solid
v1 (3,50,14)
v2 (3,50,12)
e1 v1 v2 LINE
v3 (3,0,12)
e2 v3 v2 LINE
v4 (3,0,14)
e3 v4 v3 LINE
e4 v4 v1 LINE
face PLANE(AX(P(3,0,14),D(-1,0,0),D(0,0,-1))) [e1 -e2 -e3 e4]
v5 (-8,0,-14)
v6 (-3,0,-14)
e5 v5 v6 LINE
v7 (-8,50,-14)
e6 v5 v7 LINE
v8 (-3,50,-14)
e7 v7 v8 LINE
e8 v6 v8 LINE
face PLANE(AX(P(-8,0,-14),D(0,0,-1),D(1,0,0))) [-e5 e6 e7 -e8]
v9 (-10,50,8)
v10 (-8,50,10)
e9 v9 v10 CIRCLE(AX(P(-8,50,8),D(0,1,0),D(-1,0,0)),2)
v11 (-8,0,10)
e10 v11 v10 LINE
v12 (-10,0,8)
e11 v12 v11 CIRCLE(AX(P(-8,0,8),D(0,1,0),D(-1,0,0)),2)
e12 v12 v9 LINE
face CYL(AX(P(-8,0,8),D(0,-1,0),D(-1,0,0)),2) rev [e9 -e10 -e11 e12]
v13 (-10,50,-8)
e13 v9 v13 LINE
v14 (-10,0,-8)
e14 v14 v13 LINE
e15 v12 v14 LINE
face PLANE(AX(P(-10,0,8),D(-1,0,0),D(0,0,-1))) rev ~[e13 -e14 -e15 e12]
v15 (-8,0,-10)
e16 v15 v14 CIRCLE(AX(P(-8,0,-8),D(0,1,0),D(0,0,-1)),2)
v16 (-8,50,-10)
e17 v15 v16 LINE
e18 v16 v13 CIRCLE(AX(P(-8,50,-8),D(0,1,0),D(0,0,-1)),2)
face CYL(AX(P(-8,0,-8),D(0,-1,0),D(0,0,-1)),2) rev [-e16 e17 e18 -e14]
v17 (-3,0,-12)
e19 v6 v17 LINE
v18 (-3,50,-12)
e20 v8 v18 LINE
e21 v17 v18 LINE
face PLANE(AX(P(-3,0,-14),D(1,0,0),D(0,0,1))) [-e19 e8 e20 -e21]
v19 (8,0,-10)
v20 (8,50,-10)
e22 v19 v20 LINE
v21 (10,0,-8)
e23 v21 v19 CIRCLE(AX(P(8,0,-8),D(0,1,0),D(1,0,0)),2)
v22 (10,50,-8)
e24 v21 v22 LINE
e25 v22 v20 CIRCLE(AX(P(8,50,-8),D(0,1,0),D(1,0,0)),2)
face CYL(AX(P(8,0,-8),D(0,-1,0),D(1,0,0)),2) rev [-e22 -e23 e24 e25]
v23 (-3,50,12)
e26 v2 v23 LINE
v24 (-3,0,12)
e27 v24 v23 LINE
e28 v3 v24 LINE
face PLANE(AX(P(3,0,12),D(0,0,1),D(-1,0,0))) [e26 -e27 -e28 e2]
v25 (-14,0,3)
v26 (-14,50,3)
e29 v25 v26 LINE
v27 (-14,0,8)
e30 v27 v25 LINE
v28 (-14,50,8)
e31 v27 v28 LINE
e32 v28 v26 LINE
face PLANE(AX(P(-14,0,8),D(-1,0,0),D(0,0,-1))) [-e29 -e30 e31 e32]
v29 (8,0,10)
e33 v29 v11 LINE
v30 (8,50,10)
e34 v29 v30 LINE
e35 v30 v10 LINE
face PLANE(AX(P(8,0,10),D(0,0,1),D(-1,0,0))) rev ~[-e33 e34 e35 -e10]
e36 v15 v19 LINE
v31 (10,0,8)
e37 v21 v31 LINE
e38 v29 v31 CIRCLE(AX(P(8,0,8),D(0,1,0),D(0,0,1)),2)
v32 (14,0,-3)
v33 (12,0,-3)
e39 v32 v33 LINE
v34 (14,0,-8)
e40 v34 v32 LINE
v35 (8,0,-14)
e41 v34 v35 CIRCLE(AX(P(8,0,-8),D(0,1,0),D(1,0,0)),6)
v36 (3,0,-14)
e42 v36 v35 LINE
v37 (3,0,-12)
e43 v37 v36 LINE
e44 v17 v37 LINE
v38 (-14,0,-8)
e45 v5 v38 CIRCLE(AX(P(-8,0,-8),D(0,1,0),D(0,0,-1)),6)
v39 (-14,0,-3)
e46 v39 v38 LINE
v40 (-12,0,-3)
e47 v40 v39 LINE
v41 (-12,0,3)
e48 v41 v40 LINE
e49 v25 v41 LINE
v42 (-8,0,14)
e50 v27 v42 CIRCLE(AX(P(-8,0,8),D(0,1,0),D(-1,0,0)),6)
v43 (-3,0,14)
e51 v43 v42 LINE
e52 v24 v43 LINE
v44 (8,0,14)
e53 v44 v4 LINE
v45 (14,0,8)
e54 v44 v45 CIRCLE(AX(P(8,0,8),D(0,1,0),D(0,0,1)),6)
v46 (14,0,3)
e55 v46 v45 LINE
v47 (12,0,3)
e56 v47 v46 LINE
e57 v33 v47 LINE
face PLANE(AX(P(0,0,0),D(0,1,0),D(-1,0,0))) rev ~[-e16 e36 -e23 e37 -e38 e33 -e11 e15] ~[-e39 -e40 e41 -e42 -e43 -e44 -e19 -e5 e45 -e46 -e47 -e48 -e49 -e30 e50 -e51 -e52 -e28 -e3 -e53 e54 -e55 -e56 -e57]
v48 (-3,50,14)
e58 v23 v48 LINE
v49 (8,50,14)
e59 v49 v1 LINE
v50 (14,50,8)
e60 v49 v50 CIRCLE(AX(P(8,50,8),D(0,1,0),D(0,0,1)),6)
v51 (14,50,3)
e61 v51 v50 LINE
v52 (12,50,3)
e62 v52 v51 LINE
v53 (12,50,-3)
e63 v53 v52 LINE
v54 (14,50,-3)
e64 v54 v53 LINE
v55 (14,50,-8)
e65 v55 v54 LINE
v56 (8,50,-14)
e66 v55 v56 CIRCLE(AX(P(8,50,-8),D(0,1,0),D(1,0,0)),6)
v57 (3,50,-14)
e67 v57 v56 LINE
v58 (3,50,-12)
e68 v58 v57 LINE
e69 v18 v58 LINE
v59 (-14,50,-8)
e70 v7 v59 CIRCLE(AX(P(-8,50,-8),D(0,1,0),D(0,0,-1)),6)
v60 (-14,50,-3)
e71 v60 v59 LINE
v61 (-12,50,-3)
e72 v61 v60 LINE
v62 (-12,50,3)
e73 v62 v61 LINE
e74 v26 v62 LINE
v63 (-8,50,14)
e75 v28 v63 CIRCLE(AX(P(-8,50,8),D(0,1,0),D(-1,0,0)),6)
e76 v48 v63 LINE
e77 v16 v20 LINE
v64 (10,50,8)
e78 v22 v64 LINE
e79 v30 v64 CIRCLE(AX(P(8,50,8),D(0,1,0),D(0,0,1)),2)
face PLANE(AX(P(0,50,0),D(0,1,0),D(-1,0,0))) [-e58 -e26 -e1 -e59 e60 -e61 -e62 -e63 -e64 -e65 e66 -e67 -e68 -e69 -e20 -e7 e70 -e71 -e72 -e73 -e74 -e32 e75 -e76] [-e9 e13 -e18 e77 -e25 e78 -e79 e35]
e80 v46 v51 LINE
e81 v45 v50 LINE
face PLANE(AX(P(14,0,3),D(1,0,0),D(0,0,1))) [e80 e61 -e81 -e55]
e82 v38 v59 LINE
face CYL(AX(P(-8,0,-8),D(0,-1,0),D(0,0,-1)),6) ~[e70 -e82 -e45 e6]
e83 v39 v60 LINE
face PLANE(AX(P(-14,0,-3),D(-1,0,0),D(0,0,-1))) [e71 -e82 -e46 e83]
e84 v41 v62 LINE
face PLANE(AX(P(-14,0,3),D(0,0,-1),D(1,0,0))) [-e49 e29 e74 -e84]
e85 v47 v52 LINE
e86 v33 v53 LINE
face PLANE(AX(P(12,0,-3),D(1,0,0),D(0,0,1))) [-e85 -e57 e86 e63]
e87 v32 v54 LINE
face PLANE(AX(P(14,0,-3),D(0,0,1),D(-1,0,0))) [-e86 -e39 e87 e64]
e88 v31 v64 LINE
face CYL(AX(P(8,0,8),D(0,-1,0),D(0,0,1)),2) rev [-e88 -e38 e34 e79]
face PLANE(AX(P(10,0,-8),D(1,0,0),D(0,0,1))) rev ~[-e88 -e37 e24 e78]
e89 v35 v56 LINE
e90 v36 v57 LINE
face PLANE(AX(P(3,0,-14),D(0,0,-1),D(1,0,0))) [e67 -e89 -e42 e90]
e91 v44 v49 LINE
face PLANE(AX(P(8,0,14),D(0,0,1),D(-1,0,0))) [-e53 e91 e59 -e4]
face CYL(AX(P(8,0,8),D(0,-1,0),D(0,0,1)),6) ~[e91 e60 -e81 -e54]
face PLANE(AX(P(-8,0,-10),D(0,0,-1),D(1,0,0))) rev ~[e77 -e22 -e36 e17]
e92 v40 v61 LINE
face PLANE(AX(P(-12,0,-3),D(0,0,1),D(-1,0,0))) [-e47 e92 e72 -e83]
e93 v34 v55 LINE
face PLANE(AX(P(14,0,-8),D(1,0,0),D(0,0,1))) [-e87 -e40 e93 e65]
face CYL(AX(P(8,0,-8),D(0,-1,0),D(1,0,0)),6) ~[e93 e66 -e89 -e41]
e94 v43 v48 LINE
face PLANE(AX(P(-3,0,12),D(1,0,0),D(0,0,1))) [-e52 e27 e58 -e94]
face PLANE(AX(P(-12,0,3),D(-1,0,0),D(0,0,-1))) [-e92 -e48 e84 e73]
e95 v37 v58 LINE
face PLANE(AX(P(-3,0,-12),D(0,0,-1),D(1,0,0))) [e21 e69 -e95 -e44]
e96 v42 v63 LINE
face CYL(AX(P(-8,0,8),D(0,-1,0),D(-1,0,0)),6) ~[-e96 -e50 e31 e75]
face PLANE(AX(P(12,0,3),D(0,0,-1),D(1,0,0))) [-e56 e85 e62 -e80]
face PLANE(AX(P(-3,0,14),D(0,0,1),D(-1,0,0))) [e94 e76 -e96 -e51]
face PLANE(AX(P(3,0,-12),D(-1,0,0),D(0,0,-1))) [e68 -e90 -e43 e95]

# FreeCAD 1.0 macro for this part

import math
import FreeCAD as App
import Part
import Sketcher

doc = App.newDocument("Part")
body = doc.addObject("PartDesign::Body", "Body")

# Sketch on XZ plane
sketch1 = body.newObject("Sketcher::SketchObject", "Sketch")
sketch1.AttachmentSupport = (doc.getObject("XZ_Plane"), [""])
sketch1.MapMode = "FlatFace"
sketch1.addGeometry(Part.LineSegment(App.Vector(-3, -14, 0), App.Vector(-8, -14, 0)), False)
sketch1.addGeometry(Part.ArcOfCircle(Part.Circle(App.Vector(-8, -8, 0), App.Vector(0, 0, 1), 6), math.radians(180), math.radians(270)), False)
sketch1.addGeometry(Part.LineSegment(App.Vector(-14, -8, 0), App.Vector(-14, -3, 0)), False)
sketch1.addGeometry(Part.LineSegment(App.Vector(-14, -3, 0), App.Vector(-12, -3, 0)), False)
sketch1.addGeometry(Part.LineSegment(App.Vector(-12, -3, 0), App.Vector(-12, 3, 0)), False)
sketch1.addGeometry(Part.LineSegment(App.Vector(-12, 3, 0), App.Vector(-14, 3, 0)), False)
sketch1.addGeometry(Part.LineSegment(App.Vector(-14, 3, 0), App.Vector(-14, 8, 0)), False)
sketch1.addGeometry(Part.ArcOfCircle(Part.Circle(App.Vector(-8, 8, 0), App.Vector(0, 0, 1), 6), math.radians(90), math.radians(180)), False)
sketch1.addGeometry(Part.LineSegment(App.Vector(-8, 14, 0), App.Vector(-3, 14, 0)), False)
sketch1.addGeometry(Part.LineSegment(App.Vector(-3, 14, 0), App.Vector(-3, 12, 0)), False)
sketch1.addGeometry(Part.LineSegment(App.Vector(-3, 12, 0), App.Vector(3, 12, 0)), False)
sketch1.addGeometry(Part.LineSegment(App.Vector(3, 12, 0), App.Vector(3, 14, 0)), False)
sketch1.addGeometry(Part.LineSegment(App.Vector(3, 14, 0), App.Vector(8, 14, 0)), False)
sketch1.addGeometry(Part.ArcOfCircle(Part.Circle(App.Vector(8, 8, 0), App.Vector(0, 0, 1), 6), math.radians(0), math.radians(90)), False)
sketch1.addGeometry(Part.LineSegment(App.Vector(14, 8, 0), App.Vector(14, 3, 0)), False)
sketch1.addGeometry(Part.LineSegment(App.Vector(14, 3, 0), App.Vector(12, 3, 0)), False)
sketch1.addGeometry(Part.LineSegment(App.Vector(12, 3, 0), App.Vector(12, -3, 0)), False)
sketch1.addGeometry(Part.LineSegment(App.Vector(12, -3, 0), App.Vector(14, -3, 0)), False)
sketch1.addGeometry(Part.LineSegment(App.Vector(14, -3, 0), App.Vector(14, -8, 0)), False)
sketch1.addGeometry(Part.ArcOfCircle(Part.Circle(App.Vector(8, -8, 0), App.Vector(0, 0, 1), 6), math.radians(-90), math.radians(0)), False)
sketch1.addGeometry(Part.LineSegment(App.Vector(8, -14, 0), App.Vector(3, -14, 0)), False)
sketch1.addGeometry(Part.LineSegment(App.Vector(3, -14, 0), App.Vector(3, -12, 0)), False)
sketch1.addGeometry(Part.LineSegment(App.Vector(3, -12, 0), App.Vector(-3, -12, 0)), False)
sketch1.addGeometry(Part.LineSegment(App.Vector(-3, -12, 0), App.Vector(-3, -14, 0)), False)
sketch1.addGeometry(Part.ArcOfCircle(Part.Circle(App.Vector(-8, -8, 0), App.Vector(0, 0, 1), 2), math.radians(180), math.radians(270)), False)
sketch1.addGeometry(Part.LineSegment(App.Vector(-8, -10, 0), App.Vector(8, -10, 0)), False)
sketch1.addGeometry(Part.ArcOfCircle(Part.Circle(App.Vector(8, -8, 0), App.Vector(0, 0, 1), 2), math.radians(-90), math.radians(0)), False)
sketch1.addGeometry(Part.LineSegment(App.Vector(10, -8, 0), App.Vector(10, 8, 0)), False)
sketch1.addGeometry(Part.ArcOfCircle(Part.Circle(App.Vector(8, 8, 0), App.Vector(0, 0, 1), 2), math.radians(0), math.radians(90)), False)
sketch1.addGeometry(Part.LineSegment(App.Vector(8, 10, 0), App.Vector(-8, 10, 0)), False)
sketch1.addGeometry(Part.ArcOfCircle(Part.Circle(App.Vector(-8, 8, 0), App.Vector(0, 0, 1), 2), math.radians(90), math.radians(180)), False)
sketch1.addGeometry(Part.LineSegment(App.Vector(-10, 8, 0), App.Vector(-10, -8, 0)), False)
sketch1.addConstraint(Sketcher.Constraint("Tangent", 0, 2, 1, 2))
sketch1.addConstraint(Sketcher.Constraint("Tangent", 1, 1, 2, 1))
sketch1.addConstraint(Sketcher.Constraint("Coincident", 2, 2, 3, 1))
sketch1.addConstraint(Sketcher.Constraint("Coincident", 3, 2, 4, 1))
sketch1.addConstraint(Sketcher.Constraint("Coincident", 4, 2, 5, 1))
sketch1.addConstraint(Sketcher.Constraint("Coincident", 5, 2, 6, 1))
sketch1.addConstraint(Sketcher.Constraint("Tangent", 6, 2, 7, 2))
sketch1.addConstraint(Sketcher.Constraint("Tangent", 7, 1, 8, 1))
sketch1.addConstraint(Sketcher.Constraint("Coincident", 8, 2, 9, 1))
sketch1.addConstraint(Sketcher.Constraint("Coincident", 9, 2, 10, 1))
sketch1.addConstraint(Sketcher.Constraint("Coincident", 10, 2, 11, 1))
sketch1.addConstraint(Sketcher.Constraint("Coincident", 11, 2, 12, 1))
sketch1.addConstraint(Sketcher.Constraint("Tangent", 12, 2, 13, 2))
sketch1.addConstraint(Sketcher.Constraint("Tangent", 13, 1, 14, 1))
sketch1.addConstraint(Sketcher.Constraint("Coincident", 14, 2, 15, 1))
sketch1.addConstraint(Sketcher.Constraint("Coincident", 15, 2, 16, 1))
sketch1.addConstraint(Sketcher.Constraint("Coincident", 16, 2, 17, 1))
sketch1.addConstraint(Sketcher.Constraint("Coincident", 17, 2, 18, 1))
sketch1.addConstraint(Sketcher.Constraint("Tangent", 18, 2, 19, 2))
sketch1.addConstraint(Sketcher.Constraint("Tangent", 19, 1, 20, 1))
sketch1.addConstraint(Sketcher.Constraint("Coincident", 20, 2, 21, 1))
sketch1.addConstraint(Sketcher.Constraint("Coincident", 21, 2, 22, 1))
sketch1.addConstraint(Sketcher.Constraint("Coincident", 22, 2, 23, 1))
sketch1.addConstraint(Sketcher.Constraint("Coincident", 23, 2, 0, 1))
sketch1.addConstraint(Sketcher.Constraint("Tangent", 24, 2, 25, 1))
sketch1.addConstraint(Sketcher.Constraint("Tangent", 25, 2, 26, 1))
sketch1.addConstraint(Sketcher.Constraint("Tangent", 26, 2, 27, 1))
sketch1.addConstraint(Sketcher.Constraint("Tangent", 27, 2, 28, 1))
sketch1.addConstraint(Sketcher.Constraint("Tangent", 28, 2, 29, 1))
sketch1.addConstraint(Sketcher.Constraint("Tangent", 29, 2, 30, 1))
sketch1.addConstraint(Sketcher.Constraint("Tangent", 30, 2, 31, 1))
sketch1.addConstraint(Sketcher.Constraint("Tangent", 31, 2, 24, 1))
sketch1.addConstraint(Sketcher.Constraint("Horizontal", 0))
sketch1.addConstraint(Sketcher.Constraint("Vertical", 2))
sketch1.addConstraint(Sketcher.Constraint("Horizontal", 3))
sketch1.addConstraint(Sketcher.Constraint("Vertical", 4))
sketch1.addConstraint(Sketcher.Constraint("Horizontal", 5))
sketch1.addConstraint(Sketcher.Constraint("Vertical", 6))
sketch1.addConstraint(Sketcher.Constraint("Horizontal", 8))
sketch1.addConstraint(Sketcher.Constraint("Vertical", 9))
sketch1.addConstraint(Sketcher.Constraint("Horizontal", 10))
sketch1.addConstraint(Sketcher.Constraint("Vertical", 11))
sketch1.addConstraint(Sketcher.Constraint("Horizontal", 12))
sketch1.addConstraint(Sketcher.Constraint("Vertical", 14))
sketch1.addConstraint(Sketcher.Constraint("Horizontal", 15))
sketch1.addConstraint(Sketcher.Constraint("Vertical", 16))
sketch1.addConstraint(Sketcher.Constraint("Horizontal", 17))
sketch1.addConstraint(Sketcher.Constraint("Vertical", 18))
sketch1.addConstraint(Sketcher.Constraint("Horizontal", 20))
sketch1.addConstraint(Sketcher.Constraint("Vertical", 21))
sketch1.addConstraint(Sketcher.Constraint("Horizontal", 22))
sketch1.addConstraint(Sketcher.Constraint("Vertical", 23))
sketch1.addConstraint(Sketcher.Constraint("Horizontal", 25))
sketch1.addConstraint(Sketcher.Constraint("Vertical", 27))
sketch1.addConstraint(Sketcher.Constraint("Horizontal", 29))
sketch1.addConstraint(Sketcher.Constraint("Vertical", 31))
sketch1.addConstraint(Sketcher.Constraint("Coincident", 24, 3, 1, 3))
sketch1.addConstraint(Sketcher.Constraint("Coincident", 26, 3, 19, 3))
sketch1.addConstraint(Sketcher.Constraint("Coincident", 28, 3, 13, 3))
sketch1.addConstraint(Sketcher.Constraint("Coincident", 30, 3, 7, 3))
sketch1.addConstraint(Sketcher.Constraint("Equal", 1, 7))
sketch1.addConstraint(Sketcher.Constraint("Equal", 7, 13))
sketch1.addConstraint(Sketcher.Constraint("Equal", 13, 19))
sketch1.addConstraint(Sketcher.Constraint("Equal", 24, 26))
sketch1.addConstraint(Sketcher.Constraint("Equal", 26, 28))
sketch1.addConstraint(Sketcher.Constraint("Equal", 28, 30))
sketch1.addConstraint(Sketcher.Constraint("Symmetric", 1, 3, 13, 3, -1, 1))
sketch1.addConstraint(Sketcher.Constraint("Symmetric", 3, 2, 15, 2, -1, 1))
sketch1.addConstraint(Sketcher.Constraint("Symmetric", 9, 2, 21, 2, -1, 1))
sketch1.addConstraint(Sketcher.Constraint("Horizontal", 5, 2, 14, 2))
sketch1.addConstraint(Sketcher.Constraint("Horizontal", 3, 2, 16, 2))
sketch1.addConstraint(Sketcher.Constraint("Vertical", 11, 2, 20, 2))
sketch1.addConstraint(Sketcher.Constraint("Vertical", 9, 2, 22, 2))
sketch1.addConstraint(Sketcher.Constraint("Equal", 20, 2))
sketch1.addConstraint(Sketcher.Constraint("Equal", 22, 4))
sketch1.addConstraint(Sketcher.Constraint("Equal", 17, 9))
sketch1.addConstraint(Sketcher.Constraint("Radius", 1, 6.0))
sketch1.addConstraint(Sketcher.Constraint("Radius", 24, 2.0))
sketch1.addConstraint(Sketcher.Constraint("DistanceX", 3, 1, 3, 2, 2.0))
sketch1.addConstraint(Sketcher.Constraint("DistanceX", 10, 1, 10, 2, 6.0))
sketch1.addConstraint(Sketcher.Constraint("DistanceX", 0, 2, 0, 1, 5.0))
pad1 = body.newObject("PartDesign::Pad", "Pad")
pad1.Profile = sketch1
pad1.Length = 50
pad1.Reversed = True

doc.recompute()
